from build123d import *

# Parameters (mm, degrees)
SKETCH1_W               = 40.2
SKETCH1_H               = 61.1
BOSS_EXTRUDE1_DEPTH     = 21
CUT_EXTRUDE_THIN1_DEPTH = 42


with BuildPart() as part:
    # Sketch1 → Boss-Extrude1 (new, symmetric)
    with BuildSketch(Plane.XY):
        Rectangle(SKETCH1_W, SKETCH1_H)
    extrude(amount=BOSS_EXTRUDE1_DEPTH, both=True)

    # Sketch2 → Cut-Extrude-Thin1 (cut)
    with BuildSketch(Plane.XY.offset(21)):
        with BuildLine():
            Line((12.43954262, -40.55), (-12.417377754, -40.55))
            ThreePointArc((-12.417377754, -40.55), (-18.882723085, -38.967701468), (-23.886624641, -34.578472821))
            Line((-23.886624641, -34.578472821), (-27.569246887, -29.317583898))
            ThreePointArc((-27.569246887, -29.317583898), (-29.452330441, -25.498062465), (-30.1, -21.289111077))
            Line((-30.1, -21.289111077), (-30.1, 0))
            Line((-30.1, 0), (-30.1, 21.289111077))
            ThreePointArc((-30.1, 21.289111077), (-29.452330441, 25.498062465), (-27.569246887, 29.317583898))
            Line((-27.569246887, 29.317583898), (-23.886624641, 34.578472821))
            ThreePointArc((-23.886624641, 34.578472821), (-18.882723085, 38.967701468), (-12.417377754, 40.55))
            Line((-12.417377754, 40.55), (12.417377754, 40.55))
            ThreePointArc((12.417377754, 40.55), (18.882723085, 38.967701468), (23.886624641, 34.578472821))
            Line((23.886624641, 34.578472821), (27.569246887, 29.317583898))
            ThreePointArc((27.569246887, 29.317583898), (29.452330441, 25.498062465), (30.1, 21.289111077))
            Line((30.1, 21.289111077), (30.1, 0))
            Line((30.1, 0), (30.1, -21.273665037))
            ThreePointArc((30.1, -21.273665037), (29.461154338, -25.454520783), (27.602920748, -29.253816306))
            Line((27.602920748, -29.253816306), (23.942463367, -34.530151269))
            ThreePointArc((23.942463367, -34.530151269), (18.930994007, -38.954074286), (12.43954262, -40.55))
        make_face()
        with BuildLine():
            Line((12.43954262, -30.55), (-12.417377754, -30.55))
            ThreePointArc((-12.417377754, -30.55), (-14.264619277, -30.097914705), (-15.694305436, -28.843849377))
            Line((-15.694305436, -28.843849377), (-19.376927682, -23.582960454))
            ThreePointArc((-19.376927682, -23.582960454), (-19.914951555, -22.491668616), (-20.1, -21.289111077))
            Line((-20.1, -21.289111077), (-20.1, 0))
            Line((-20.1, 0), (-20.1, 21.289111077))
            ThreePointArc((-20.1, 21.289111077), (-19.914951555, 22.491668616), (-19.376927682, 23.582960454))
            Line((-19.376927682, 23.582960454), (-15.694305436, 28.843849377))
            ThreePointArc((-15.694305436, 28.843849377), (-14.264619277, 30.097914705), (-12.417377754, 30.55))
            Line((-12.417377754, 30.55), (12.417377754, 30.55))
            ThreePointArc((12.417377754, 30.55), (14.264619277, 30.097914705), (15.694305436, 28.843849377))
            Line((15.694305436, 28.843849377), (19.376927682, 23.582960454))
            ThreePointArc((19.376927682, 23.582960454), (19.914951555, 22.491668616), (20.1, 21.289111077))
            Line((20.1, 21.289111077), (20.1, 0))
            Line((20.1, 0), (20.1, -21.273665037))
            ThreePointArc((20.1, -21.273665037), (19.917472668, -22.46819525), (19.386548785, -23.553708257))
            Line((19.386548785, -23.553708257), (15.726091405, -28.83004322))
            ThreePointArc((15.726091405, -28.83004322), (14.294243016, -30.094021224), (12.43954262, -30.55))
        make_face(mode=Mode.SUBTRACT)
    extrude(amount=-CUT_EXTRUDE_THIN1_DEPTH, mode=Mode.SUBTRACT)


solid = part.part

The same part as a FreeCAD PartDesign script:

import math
import FreeCAD as App
import Part
import Sketcher

doc = App.newDocument("Part")
body = doc.addObject("PartDesign::Body", "Body")

# Sketch on XY plane
sketch1 = body.newObject("Sketcher::SketchObject", "Sketch")
sketch1.AttachmentSupport = (doc.getObject("XY_Plane"), [""])
sketch1.MapMode = "FlatFace"
sketch1.addGeometry(Part.LineSegment(App.Vector(-20, 31, 0), App.Vector(-20, -31, 0)), False)
sketch1.addGeometry(Part.LineSegment(App.Vector(-20, -31, 0), App.Vector(20, -31, 0)), False)
sketch1.addGeometry(Part.LineSegment(App.Vector(20, -31, 0), App.Vector(20, 31, 0)), False)
sketch1.addGeometry(Part.LineSegment(App.Vector(20, 31, 0), App.Vector(-20, 31, 0)), False)
sketch1.addConstraint(Sketcher.Constraint("Coincident", 0, 2, 1, 1))
sketch1.addConstraint(Sketcher.Constraint("Coincident", 1, 2, 2, 1))
sketch1.addConstraint(Sketcher.Constraint("Coincident", 2, 2, 3, 1))
sketch1.addConstraint(Sketcher.Constraint("Coincident", 3, 2, 0, 1))
sketch1.addConstraint(Sketcher.Constraint("Vertical", 0))
sketch1.addConstraint(Sketcher.Constraint("Horizontal", 1))
sketch1.addConstraint(Sketcher.Constraint("Vertical", 2))
sketch1.addConstraint(Sketcher.Constraint("Horizontal", 3))
sketch1.addConstraint(Sketcher.Constraint("Symmetric", 0, 2, 2, 2, -1, 1))
sketch1.addConstraint(Sketcher.Constraint("DistanceX", 1, 1, 1, 2, 40.2))
sketch1.addConstraint(Sketcher.Constraint("DistanceY", 0, 2, 0, 1, 61.1))
pad1 = body.newObject("PartDesign::Pad", "Pad")
pad1.Profile = sketch1
pad1.Length = 42
pad1.Midplane = True

# Sketch on XY plane
sketch2 = body.newObject("Sketcher::SketchObject", "Sketch001")
sketch2.AttachmentSupport = (doc.getObject("XY_Plane"), [""])
sketch2.MapMode = "FlatFace"
sketch2.AttachmentOffset = App.Placement(App.Vector(0, 0, 21), App.Rotation())
sketch2.addGeometry(Part.LineSegment(App.Vector(-12.4, -40.5, 0), App.Vector(12.4, -40.5, 0)), False)
sketch2.addGeometry(Part.ArcOfCircle(Part.Circle(App.Vector(12.4, -26.6, 0), App.Vector(0, 0, 1), 14), math.radians(-90), math.radians(-35)), False)
sketch2.addGeometry(Part.LineSegment(App.Vector(23.9, -34.5, 0), App.Vector(27.6, -29.3, 0)), False)
sketch2.addGeometry(Part.ArcOfCircle(Part.Circle(App.Vector(16.1, -21.3, 0), App.Vector(0, 0, 1), 14), math.radians(-35), math.radians(0)), False)
sketch2.addGeometry(Part.LineSegment(App.Vector(30.1, -21.3, 0), App.Vector(30.1, 21.3, 0)), False)
sketch2.addGeometry(Part.ArcOfCircle(Part.Circle(App.Vector(16.1, 21.3, 0), App.Vector(0, 0, 1), 14), math.radians(0), math.radians(35)), False)
sketch2.addGeometry(Part.LineSegment(App.Vector(27.6, 29.3, 0), App.Vector(23.9, 34.6, 0)), False)
sketch2.addGeometry(Part.ArcOfCircle(Part.Circle(App.Vector(12.4, 26.6, 0), App.Vector(0, 0, 1), 14), math.radians(35), math.radians(90)), False)
sketch2.addGeometry(Part.LineSegment(App.Vector(12.4, 40.5, 0), App.Vector(-12.4, 40.5, 0)), False)
sketch2.addGeometry(Part.ArcOfCircle(Part.Circle(App.Vector(-12.4, 26.6, 0), App.Vector(0, 0, 1), 14), math.radians(90), math.radians(145)), False)
sketch2.addGeometry(Part.LineSegment(App.Vector(-23.9, 34.6, 0), App.Vector(-27.6, 29.3, 0)), False)
sketch2.addGeometry(Part.ArcOfCircle(Part.Circle(App.Vector(-16.1, 21.3, 0), App.Vector(0, 0, 1), 14), math.radians(145), math.radians(180)), False)
sketch2.addGeometry(Part.LineSegment(App.Vector(-30.1, 21.3, 0), App.Vector(-30.1, -21.3, 0)), False)
sketch2.addGeometry(Part.ArcOfCircle(Part.Circle(App.Vector(-16.1, -21.3, 0), App.Vector(0, 0, 1), 14), math.radians(-180), math.radians(-145)), False)
sketch2.addGeometry(Part.LineSegment(App.Vector(-27.6, -29.3, 0), App.Vector(-23.9, -34.6, 0)), False)
sketch2.addGeometry(Part.ArcOfCircle(Part.Circle(App.Vector(-12.4, -26.6, 0), App.Vector(0, 0, 1), 14), math.radians(-145), math.radians(-90)), False)
sketch2.addGeometry(Part.LineSegment(App.Vector(12.4, -30.6, 0), App.Vector(-12.4, -30.6, 0)), False)
sketch2.addGeometry(Part.ArcOfCircle(Part.Circle(App.Vector(-12.4, -26.6, 0), App.Vector(0, 0, 1), 4), math.radians(-145), math.radians(-90)), False)
sketch2.addGeometry(Part.LineSegment(App.Vector(-15.7, -28.8, 0), App.Vector(-19.4, -23.6, 0)), False)
sketch2.addGeometry(Part.ArcOfCircle(Part.Circle(App.Vector(-16.1, -21.3, 0), App.Vector(0, 0, 1), 4), math.radians(180), math.radians(215)), False)
sketch2.addGeometry(Part.LineSegment(App.Vector(-20.1, -21.3, 0), App.Vector(-20.1, 21.3, 0)), False)
sketch2.addGeometry(Part.ArcOfCircle(Part.Circle(App.Vector(-16.1, 21.3, 0), App.Vector(0, 0, 1), 4), math.radians(145), math.radians(180)), False)
sketch2.addGeometry(Part.LineSegment(App.Vector(-19.4, 23.6, 0), App.Vector(-15.7, 28.8, 0)), False)
sketch2.addGeometry(Part.ArcOfCircle(Part.Circle(App.Vector(-12.4, 26.6, 0), App.Vector(0, 0, 1), 4), math.radians(90), math.radians(145)), False)
sketch2.addGeometry(Part.LineSegment(App.Vector(-12.4, 30.6, 0), App.Vector(12.4, 30.6, 0)), False)
sketch2.addGeometry(Part.ArcOfCircle(Part.Circle(App.Vector(12.4, 26.6, 0), App.Vector(0, 0, 1), 4), math.radians(35), math.radians(90)), False)
sketch2.addGeometry(Part.LineSegment(App.Vector(15.7, 28.8, 0), App.Vector(19.4, 23.6, 0)), False)
sketch2.addGeometry(Part.ArcOfCircle(Part.Circle(App.Vector(16.1, 21.3, 0), App.Vector(0, 0, 1), 4), math.radians(0), math.radians(35)), False)
sketch2.addGeometry(Part.LineSegment(App.Vector(20.1, 21.3, 0), App.Vector(20.1, -21.3, 0)), False)
sketch2.addGeometry(Part.ArcOfCircle(Part.Circle(App.Vector(16.1, -21.3, 0), App.Vector(0, 0, 1), 4), math.radians(-35), math.radians(0)), False)
sketch2.addGeometry(Part.LineSegment(App.Vector(19.4, -23.6, 0), App.Vector(15.7, -28.8, 0)), False)
sketch2.addGeometry(Part.ArcOfCircle(Part.Circle(App.Vector(12.4, -26.5, 0), App.Vector(0, 0, 1), 4), math.radians(-90), math.radians(-35)), False)
sketch2.addConstraint(Sketcher.Constraint("Tangent", 0, 2, 1, 1))
sketch2.addConstraint(Sketcher.Constraint("Tangent", 1, 2, 2, 1))
sketch2.addConstraint(Sketcher.Constraint("Tangent", 2, 2, 3, 1))
sketch2.addConstraint(Sketcher.Constraint("Tangent", 3, 2, 4, 1))
sketch2.addConstraint(Sketcher.Constraint("Tangent", 4, 2, 5, 1))
sketch2.addConstraint(Sketcher.Constraint("Tangent", 5, 2, 6, 1))
sketch2.addConstraint(Sketcher.Constraint("Tangent", 6, 2, 7, 1))
sketch2.addConstraint(Sketcher.Constraint("Tangent", 7, 2, 8, 1))
sketch2.addConstraint(Sketcher.Constraint("Tangent", 8, 2, 9, 1))
sketch2.addConstraint(Sketcher.Constraint("Tangent", 9, 2, 10, 1))
sketch2.addConstraint(Sketcher.Constraint("Tangent", 10, 2, 11, 1))
sketch2.addConstraint(Sketcher.Constraint("Tangent", 11, 2, 12, 1))
sketch2.addConstraint(Sketcher.Constraint("Tangent", 12, 2, 13, 1))
sketch2.addConstraint(Sketcher.Constraint("Tangent", 13, 2, 14, 1))
sketch2.addConstraint(Sketcher.Constraint("Tangent", 14, 2, 15, 1))
sketch2.addConstraint(Sketcher.Constraint("Tangent", 15, 2, 0, 1))
sketch2.addConstraint(Sketcher.Constraint("Tangent", 16, 2, 17, 2))
sketch2.addConstraint(Sketcher.Constraint("Tangent", 17, 1, 18, 1))
sketch2.addConstraint(Sketcher.Constraint("Tangent", 18, 2, 19, 2))
sketch2.addConstraint(Sketcher.Constraint("Tangent", 19, 1, 20, 1))
sketch2.addConstraint(Sketcher.Constraint("Tangent", 20, 2, 21, 2))
sketch2.addConstraint(Sketcher.Constraint("Tangent", 21, 1, 22, 1))
sketch2.addConstraint(Sketcher.Constraint("Tangent", 22, 2, 23, 2))
sketch2.addConstraint(Sketcher.Constraint("Tangent", 23, 1, 24, 1))
sketch2.addConstraint(Sketcher.Constraint("Tangent", 24, 2, 25, 2))
sketch2.addConstraint(Sketcher.Constraint("Tangent", 25, 1, 26, 1))
sketch2.addConstraint(Sketcher.Constraint("Tangent", 26, 2, 27, 2))
sketch2.addConstraint(Sketcher.Constraint("Tangent", 27, 1, 28, 1))
sketch2.addConstraint(Sketcher.Constraint("Tangent", 28, 2, 29, 2))
sketch2.addConstraint(Sketcher.Constraint("Tangent", 29, 1, 30, 1))
sketch2.addConstraint(Sketcher.Constraint("Tangent", 30, 2, 31, 2))
sketch2.addConstraint(Sketcher.Constraint("Tangent", 31, 1, 16, 1))
sketch2.addConstraint(Sketcher.Constraint("Horizontal", 0))
sketch2.addConstraint(Sketcher.Constraint("Vertical", 4))
sketch2.addConstraint(Sketcher.Constraint("Horizontal", 8))
sketch2.addConstraint(Sketcher.Constraint("Vertical", 12))
sketch2.addConstraint(Sketcher.Constraint("Horizontal", 16))
sketch2.addConstraint(Sketcher.Constraint("Vertical", 20))
sketch2.addConstraint(Sketcher.Constraint("Horizontal", 24))
sketch2.addConstraint(Sketcher.Constraint("Vertical", 28))
sketch2.addConstraint(Sketcher.Constraint("Coincident", 17, 3, 15, 3))
sketch2.addConstraint(Sketcher.Constraint("Coincident", 19, 3, 13, 3))
sketch2.addConstraint(Sketcher.Constraint("Coincident", 21, 3, 11, 3))
sketch2.addConstraint(Sketcher.Constraint("Coincident", 23, 3, 9, 3))
sketch2.addConstraint(Sketcher.Constraint("Coincident", 25, 3, 7, 3))
sketch2.addConstraint(Sketcher.Constraint("Coincident", 27, 3, 5, 3))
sketch2.addConstraint(Sketcher.Constraint("Coincident", 29, 3, 3, 3))
sketch2.addConstraint(Sketcher.Constraint("Coincident", 31, 3, 1, 3))
sketch2.addConstraint(Sketcher.Constraint("Equal", 1, 3))
sketch2.addConstraint(Sketcher.Constraint("Equal", 3, 5))
sketch2.addConstraint(Sketcher.Constraint("Equal", 5, 7))
sketch2.addConstraint(Sketcher.Constraint("Equal", 7, 9))
sketch2.addConstraint(Sketcher.Constraint("Equal", 9, 11))
sketch2.addConstraint(Sketcher.Constraint("Equal", 11, 13))
sketch2.addConstraint(Sketcher.Constraint("Equal", 13, 15))
sketch2.addConstraint(Sketcher.Constraint("Equal", 17, 19))
sketch2.addConstraint(Sketcher.Constraint("Equal", 21, 23))
sketch2.addConstraint(Sketcher.Constraint("Equal", 25, 27))
sketch2.addConstraint(Sketcher.Constraint("Symmetric", 5, 3, 13, 3, -1, 1))
sketch2.addConstraint(Sketcher.Constraint("Symmetric", 7, 3, 15, 3, -1, 1))
sketch2.addConstraint(Sketcher.Constraint("Symmetric", 6, 2, 9, 2, -2))
sketch2.addConstraint(Sketcher.Constraint("Equal", 2, 6))
sketch2.addConstraint(Sketcher.Constraint("Radius", 1, 14.0))
sketch2.addConstraint(Sketcher.Constraint("Radius", 17, 4.0))
sketch2.addConstraint(Sketcher.Constraint("DistanceX", -1, 1, 3, 3, 16.1))
sketch2.addConstraint(Sketcher.Constraint("DistanceY", 1, 3, 7, 3, 53.1))
sketch2.addConstraint(Sketcher.Constraint("DistanceX", 0, 1, 0, 2, 24.85692))
sketch2.addConstraint(Sketcher.Constraint("DistanceX", 8, 2, 8, 1, 24.834756))
sketch2.addConstraint(Sketcher.Constraint("DistanceY", 4, 1, 4, 2, 42.562776))
pocket1 = body.newObject("PartDesign::Pocket", "Pocket")
pocket1.Profile = sketch2
pocket1.Length = 42

doc.recompute()
